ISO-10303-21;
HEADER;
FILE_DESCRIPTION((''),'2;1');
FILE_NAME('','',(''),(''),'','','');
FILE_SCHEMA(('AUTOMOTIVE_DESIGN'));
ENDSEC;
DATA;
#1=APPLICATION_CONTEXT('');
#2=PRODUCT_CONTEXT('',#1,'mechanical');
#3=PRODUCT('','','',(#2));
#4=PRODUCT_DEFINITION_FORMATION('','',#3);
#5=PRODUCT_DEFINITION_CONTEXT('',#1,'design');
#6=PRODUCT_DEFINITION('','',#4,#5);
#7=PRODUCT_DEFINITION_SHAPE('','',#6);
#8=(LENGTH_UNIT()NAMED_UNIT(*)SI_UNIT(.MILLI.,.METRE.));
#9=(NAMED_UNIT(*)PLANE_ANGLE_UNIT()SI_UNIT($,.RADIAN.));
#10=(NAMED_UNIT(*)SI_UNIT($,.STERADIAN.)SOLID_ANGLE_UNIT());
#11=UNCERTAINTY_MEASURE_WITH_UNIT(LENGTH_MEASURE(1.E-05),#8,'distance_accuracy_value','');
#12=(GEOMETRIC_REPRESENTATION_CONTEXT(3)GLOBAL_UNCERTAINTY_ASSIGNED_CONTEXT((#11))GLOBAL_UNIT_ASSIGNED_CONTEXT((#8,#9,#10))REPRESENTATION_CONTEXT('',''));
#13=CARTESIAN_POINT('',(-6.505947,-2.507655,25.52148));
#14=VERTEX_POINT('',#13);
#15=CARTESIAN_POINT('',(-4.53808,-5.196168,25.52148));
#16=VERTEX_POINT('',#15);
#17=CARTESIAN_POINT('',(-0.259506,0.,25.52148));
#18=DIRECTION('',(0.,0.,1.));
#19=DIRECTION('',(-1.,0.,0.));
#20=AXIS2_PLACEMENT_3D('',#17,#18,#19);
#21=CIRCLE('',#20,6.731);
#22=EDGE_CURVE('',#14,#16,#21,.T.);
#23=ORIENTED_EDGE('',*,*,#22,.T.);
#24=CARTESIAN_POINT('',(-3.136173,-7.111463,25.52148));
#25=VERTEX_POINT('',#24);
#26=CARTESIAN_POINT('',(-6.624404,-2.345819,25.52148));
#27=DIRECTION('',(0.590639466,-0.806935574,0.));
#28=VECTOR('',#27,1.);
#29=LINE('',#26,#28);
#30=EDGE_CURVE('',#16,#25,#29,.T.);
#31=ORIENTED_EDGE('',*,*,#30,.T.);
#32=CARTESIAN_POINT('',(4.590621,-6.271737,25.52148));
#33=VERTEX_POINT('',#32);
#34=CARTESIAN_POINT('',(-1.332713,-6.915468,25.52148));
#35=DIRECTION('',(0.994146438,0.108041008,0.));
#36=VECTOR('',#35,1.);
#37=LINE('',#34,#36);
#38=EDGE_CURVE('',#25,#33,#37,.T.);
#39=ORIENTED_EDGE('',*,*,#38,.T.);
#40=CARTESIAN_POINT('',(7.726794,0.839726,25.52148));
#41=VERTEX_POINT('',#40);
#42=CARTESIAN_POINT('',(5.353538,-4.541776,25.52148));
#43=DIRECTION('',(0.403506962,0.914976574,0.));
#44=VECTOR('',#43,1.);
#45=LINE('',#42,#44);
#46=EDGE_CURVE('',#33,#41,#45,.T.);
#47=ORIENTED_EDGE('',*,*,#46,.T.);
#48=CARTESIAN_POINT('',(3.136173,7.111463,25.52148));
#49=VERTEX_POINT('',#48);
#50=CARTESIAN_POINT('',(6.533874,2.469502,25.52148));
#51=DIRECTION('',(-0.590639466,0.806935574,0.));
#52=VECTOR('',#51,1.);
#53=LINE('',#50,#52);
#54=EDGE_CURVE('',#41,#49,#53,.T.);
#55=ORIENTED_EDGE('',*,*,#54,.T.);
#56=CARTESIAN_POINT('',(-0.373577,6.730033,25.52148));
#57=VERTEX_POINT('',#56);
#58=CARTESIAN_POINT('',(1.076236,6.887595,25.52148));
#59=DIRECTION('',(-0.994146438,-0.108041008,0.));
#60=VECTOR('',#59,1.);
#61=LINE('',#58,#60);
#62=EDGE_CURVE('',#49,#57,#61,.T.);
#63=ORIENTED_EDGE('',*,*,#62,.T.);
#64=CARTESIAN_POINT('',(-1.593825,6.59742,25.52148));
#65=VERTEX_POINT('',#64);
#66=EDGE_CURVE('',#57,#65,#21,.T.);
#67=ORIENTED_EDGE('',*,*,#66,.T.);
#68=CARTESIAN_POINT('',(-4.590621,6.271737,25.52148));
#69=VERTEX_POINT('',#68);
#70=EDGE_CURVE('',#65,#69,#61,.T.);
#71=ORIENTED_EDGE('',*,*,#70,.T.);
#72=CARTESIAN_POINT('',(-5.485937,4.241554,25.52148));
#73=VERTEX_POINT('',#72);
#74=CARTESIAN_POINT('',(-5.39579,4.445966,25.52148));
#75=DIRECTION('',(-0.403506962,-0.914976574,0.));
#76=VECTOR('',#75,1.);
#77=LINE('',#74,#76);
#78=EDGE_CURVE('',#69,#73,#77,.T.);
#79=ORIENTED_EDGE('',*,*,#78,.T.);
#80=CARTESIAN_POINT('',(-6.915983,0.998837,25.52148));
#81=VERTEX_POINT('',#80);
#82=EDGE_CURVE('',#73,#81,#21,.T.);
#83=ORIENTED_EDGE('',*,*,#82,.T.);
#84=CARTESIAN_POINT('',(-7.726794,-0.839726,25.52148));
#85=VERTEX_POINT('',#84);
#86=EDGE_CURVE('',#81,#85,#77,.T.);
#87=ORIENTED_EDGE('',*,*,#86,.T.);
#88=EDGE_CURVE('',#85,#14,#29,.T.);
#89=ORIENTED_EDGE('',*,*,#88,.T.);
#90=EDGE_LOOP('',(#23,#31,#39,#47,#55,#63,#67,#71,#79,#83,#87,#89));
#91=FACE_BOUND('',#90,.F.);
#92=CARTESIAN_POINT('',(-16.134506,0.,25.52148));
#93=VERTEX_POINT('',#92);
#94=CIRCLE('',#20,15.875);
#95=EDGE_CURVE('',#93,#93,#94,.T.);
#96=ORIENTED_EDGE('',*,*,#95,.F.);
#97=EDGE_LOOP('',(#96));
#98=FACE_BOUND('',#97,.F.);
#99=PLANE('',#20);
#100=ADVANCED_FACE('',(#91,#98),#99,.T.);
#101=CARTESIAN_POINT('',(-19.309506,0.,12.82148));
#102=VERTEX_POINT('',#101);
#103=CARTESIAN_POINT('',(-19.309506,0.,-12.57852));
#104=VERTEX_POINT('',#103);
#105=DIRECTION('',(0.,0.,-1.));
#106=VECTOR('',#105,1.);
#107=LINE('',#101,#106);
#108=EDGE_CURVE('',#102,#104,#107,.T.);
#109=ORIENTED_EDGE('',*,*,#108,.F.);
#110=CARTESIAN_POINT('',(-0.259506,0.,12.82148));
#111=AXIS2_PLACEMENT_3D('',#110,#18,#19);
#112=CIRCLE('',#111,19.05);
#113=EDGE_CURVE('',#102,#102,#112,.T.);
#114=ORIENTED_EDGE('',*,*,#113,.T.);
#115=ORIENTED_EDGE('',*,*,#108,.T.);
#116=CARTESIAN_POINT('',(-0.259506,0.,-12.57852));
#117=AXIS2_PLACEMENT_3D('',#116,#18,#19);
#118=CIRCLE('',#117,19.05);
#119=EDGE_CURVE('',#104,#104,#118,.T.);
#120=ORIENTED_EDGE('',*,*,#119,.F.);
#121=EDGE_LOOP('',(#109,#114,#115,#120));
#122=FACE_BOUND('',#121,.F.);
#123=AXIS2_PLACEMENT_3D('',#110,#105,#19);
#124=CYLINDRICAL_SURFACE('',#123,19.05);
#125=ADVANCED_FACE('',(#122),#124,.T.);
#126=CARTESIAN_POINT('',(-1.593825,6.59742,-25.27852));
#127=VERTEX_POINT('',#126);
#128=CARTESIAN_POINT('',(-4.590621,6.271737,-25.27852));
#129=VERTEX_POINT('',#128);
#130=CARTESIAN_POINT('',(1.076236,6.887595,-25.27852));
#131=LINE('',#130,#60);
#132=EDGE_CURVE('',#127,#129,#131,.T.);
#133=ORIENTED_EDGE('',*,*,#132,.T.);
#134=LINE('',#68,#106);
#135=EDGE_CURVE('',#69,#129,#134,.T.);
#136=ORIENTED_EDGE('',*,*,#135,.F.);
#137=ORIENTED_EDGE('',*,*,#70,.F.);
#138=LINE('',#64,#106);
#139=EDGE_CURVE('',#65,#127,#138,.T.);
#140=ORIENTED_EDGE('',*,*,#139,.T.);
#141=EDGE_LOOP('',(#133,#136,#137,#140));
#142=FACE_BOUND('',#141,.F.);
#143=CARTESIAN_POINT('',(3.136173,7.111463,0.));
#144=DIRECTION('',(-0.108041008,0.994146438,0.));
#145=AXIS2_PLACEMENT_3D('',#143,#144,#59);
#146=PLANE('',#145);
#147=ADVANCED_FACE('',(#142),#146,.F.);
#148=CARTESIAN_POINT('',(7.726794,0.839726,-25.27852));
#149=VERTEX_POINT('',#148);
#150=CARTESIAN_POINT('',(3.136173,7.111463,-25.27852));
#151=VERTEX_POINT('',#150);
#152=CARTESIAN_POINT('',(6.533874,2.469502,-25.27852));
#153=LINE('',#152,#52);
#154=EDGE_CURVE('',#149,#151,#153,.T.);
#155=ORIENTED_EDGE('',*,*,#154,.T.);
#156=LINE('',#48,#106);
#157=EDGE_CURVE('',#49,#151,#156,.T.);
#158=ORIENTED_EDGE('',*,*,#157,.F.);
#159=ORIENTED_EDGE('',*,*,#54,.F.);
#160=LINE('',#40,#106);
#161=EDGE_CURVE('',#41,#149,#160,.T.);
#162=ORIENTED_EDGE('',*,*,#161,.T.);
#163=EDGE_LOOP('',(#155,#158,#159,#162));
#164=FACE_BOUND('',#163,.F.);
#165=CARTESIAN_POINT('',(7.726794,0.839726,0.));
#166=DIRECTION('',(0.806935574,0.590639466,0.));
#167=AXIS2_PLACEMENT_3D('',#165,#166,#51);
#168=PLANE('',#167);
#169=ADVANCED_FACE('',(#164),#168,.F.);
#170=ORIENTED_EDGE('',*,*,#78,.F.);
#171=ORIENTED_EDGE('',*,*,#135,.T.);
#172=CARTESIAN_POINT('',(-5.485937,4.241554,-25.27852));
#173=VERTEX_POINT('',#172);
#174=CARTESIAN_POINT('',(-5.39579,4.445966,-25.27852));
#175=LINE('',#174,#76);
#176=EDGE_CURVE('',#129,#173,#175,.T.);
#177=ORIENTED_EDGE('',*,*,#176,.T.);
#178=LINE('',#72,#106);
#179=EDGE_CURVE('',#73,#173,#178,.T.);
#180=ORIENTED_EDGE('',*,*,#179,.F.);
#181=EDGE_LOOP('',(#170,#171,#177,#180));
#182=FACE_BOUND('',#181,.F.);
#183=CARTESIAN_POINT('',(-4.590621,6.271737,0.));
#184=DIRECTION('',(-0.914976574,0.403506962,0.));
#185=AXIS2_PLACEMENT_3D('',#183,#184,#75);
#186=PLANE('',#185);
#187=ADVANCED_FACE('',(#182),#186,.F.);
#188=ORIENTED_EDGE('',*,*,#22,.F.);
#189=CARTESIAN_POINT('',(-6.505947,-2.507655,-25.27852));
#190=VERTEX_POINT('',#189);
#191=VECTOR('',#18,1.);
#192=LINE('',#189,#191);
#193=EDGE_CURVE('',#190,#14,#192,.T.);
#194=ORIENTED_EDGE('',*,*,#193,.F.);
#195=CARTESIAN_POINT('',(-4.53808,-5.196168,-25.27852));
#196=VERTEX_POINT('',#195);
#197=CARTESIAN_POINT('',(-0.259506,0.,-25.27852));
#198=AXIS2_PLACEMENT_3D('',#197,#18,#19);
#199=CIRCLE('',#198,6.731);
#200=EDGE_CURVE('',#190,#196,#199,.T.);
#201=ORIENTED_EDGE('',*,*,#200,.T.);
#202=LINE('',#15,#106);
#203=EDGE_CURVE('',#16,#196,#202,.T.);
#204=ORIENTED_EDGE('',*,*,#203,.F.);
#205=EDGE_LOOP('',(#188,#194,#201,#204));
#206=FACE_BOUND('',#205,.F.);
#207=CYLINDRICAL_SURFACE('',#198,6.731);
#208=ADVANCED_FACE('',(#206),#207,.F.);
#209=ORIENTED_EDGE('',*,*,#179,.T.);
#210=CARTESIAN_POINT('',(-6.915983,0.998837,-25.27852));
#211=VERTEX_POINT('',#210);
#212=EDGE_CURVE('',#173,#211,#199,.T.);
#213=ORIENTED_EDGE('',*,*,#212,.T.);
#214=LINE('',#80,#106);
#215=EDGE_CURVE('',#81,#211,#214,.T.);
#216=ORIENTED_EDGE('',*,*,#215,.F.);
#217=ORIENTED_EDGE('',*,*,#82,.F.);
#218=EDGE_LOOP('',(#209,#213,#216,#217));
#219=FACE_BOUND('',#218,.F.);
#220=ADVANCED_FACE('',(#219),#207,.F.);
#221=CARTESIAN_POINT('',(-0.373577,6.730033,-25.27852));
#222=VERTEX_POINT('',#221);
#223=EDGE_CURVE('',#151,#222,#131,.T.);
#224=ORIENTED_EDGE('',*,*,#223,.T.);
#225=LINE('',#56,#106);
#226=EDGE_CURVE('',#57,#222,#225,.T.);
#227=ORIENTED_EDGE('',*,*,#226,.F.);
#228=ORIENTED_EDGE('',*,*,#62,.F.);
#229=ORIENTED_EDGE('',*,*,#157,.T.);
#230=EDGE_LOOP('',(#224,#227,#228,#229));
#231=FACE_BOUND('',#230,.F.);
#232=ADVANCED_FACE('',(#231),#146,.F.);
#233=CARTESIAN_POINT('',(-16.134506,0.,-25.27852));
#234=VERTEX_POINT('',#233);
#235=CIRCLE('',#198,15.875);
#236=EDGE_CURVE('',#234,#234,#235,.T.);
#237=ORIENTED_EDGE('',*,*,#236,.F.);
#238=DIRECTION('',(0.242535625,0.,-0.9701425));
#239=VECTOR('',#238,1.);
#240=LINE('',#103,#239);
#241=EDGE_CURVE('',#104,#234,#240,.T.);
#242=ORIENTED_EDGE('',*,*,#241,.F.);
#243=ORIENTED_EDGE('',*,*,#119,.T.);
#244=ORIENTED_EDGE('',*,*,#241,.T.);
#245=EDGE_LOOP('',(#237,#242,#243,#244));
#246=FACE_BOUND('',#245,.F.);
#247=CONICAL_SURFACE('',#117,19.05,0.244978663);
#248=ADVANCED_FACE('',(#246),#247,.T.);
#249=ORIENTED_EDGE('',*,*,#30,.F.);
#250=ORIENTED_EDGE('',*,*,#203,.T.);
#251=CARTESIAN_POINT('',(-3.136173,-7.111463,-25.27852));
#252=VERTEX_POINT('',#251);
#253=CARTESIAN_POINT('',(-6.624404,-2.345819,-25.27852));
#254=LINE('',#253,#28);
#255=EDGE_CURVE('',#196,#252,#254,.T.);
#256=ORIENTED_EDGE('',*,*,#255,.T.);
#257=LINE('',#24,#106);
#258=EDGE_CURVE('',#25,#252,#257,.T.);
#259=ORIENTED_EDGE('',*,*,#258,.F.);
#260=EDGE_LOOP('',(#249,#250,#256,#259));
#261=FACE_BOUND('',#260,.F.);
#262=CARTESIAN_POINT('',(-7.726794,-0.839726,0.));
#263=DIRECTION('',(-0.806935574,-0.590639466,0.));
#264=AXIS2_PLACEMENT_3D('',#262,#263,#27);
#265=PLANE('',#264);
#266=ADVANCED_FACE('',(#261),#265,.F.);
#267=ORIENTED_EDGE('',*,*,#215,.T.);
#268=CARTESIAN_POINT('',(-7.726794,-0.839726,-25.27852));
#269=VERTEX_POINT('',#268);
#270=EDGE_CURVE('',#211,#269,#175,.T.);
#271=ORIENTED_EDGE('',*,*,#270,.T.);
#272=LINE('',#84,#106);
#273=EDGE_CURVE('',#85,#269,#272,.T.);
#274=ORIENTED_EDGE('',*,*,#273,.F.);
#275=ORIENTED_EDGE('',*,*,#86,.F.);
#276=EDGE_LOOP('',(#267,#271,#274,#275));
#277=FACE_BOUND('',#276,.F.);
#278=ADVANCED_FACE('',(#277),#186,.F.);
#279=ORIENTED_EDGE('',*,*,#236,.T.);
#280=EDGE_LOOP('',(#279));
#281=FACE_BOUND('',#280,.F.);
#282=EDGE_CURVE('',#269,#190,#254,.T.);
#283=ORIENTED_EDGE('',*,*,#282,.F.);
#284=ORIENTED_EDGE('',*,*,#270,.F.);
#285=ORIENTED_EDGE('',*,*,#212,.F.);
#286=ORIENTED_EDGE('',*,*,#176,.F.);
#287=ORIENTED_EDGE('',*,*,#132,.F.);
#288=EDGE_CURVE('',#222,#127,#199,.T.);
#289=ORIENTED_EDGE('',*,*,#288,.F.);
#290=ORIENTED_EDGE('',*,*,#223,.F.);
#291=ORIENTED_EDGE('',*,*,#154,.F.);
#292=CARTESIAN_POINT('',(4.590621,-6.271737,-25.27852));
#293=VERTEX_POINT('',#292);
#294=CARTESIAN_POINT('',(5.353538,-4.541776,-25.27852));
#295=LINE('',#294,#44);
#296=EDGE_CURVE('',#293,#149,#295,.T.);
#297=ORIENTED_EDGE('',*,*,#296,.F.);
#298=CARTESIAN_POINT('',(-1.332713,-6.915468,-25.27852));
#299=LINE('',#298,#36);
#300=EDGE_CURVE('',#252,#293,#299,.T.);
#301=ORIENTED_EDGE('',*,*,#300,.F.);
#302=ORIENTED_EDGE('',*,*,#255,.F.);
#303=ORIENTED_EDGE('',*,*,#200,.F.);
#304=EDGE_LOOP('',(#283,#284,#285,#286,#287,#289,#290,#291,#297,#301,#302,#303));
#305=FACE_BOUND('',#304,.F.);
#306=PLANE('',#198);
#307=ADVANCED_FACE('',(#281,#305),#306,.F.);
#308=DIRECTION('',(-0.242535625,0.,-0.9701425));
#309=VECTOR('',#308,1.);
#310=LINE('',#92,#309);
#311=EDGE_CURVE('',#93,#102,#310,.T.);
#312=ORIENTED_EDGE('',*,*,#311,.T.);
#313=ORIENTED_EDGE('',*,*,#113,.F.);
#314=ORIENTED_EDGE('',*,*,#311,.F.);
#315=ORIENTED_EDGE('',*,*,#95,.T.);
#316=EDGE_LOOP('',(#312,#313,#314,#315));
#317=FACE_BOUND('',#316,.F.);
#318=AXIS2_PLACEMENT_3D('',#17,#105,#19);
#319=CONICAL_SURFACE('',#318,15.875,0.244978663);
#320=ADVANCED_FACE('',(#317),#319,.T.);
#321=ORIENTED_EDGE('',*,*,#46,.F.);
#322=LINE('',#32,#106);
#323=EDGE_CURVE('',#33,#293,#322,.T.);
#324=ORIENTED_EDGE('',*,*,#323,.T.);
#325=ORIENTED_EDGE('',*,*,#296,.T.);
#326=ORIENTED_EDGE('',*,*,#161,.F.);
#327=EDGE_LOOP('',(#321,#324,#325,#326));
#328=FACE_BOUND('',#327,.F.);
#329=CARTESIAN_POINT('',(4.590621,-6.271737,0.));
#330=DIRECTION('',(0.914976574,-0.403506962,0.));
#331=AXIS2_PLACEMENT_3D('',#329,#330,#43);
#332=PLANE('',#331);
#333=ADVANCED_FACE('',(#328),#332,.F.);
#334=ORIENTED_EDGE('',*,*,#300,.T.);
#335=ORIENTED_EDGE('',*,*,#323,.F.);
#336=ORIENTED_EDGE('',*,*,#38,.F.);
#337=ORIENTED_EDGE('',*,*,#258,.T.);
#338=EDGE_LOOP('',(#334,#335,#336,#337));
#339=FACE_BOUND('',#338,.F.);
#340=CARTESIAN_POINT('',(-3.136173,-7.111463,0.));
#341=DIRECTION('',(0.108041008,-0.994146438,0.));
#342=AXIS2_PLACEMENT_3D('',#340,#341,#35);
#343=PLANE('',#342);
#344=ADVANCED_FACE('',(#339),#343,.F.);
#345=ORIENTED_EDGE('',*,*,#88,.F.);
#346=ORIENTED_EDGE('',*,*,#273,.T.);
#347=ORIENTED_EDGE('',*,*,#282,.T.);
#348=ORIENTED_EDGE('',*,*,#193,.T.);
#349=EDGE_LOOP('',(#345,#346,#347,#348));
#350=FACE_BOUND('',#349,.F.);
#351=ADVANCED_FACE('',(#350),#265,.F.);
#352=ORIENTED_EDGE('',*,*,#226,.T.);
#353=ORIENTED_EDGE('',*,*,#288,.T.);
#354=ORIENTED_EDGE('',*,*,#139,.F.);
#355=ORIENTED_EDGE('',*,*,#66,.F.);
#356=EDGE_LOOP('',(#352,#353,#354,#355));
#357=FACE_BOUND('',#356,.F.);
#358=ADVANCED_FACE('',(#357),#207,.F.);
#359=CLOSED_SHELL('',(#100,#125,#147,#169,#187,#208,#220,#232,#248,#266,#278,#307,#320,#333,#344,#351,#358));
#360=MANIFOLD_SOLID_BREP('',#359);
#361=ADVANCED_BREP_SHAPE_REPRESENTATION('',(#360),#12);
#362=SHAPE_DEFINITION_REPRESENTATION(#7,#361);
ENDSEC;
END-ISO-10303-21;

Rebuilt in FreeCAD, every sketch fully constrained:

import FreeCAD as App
import Part
import Sketcher
Q = App.Units.Quantity


def add_polygon(sketch, points):
    """Adds a closed chain of lines whose ends are joined by coincident constraints."""
    first, n = sketch.GeometryCount, len(points)
    for a, b in zip(points, points[1:] + points[:1]):
        sketch.addGeometry(Part.LineSegment(App.Vector(*a, 0), App.Vector(*b, 0)), False)
    for i in range(n):
        sketch.addConstraint(Sketcher.Constraint("Coincident", first + i, 2, first + (i + 1) % n, 1))

doc = App.newDocument("Part")
body = doc.addObject("PartDesign::Body", "Body")

# Sketch on XZ plane
sketch1 = doc.addObject("Sketcher::SketchObject", "Sketch")
body.addObject(sketch1)
sketch1.AttachmentSupport = (doc.XZ_Plane, [""])
sketch1.MapMode = "FlatFace"
add_polygon(sketch1, [(-16, -25), (-7, -25), (-7, 26), (-16, 26), (-19, 13), (-19, -13)])  # lines 0-5
sketch1.addGeometry(Part.LineSegment(App.Vector(0, -25, 0), App.Vector(0, 26, 0)), True)  # axis
sketch1.addConstraint([
    Sketcher.Constraint("Horizontal", 0),
    Sketcher.Constraint("Vertical", 1),
    Sketcher.Constraint("Horizontal", 2),
    Sketcher.Constraint("Vertical", 4),
    Sketcher.Constraint("Vertical", 6),
    Sketcher.Constraint("Horizontal", 5, 2, 6, 1),
    Sketcher.Constraint("Horizontal", 2, 2, 6, 2),
    Sketcher.Constraint("Vertical", 2, 2, 5, 2),
    Sketcher.Constraint("Equal", 3, 5),
    Sketcher.Constraint("DistanceY", 1, 1, 1, 2, Q("2 in")),
    Sketcher.Constraint("DistanceY", 4, 2, 4, 1, Q("1 in")),
    Sketcher.Constraint("DistanceX", 0, 1, 0, 2, Q("0.36 in")),
    Sketcher.Constraint("DistanceX", 4, 2, 6, 1, Q("0.75 in")),
    Sketcher.Constraint("DistanceX", 3, 2, 2, 2, Q("0.125 in")),
    Sketcher.Constraint("DistanceY", 0, 2, -1, 1, 25.27852),
    Sketcher.Constraint("DistanceX", 0, 2, -1, 1, 6.990506),
])
revolution = doc.addObject("PartDesign::Revolution", "Revolution")
body.addObject(revolution)
revolution.Profile = sketch1
revolution.ReferenceAxis = (sketch1, ["Axis0"])
revolution.Angle = 360

# Sketch on XY plane
sketch2 = doc.addObject("Sketcher::SketchObject", "Sketch001")
body.addObject(sketch2)
sketch2.AttachmentSupport = (doc.XY_Plane, [""])
sketch2.MapMode = "FlatFace"
add_polygon(sketch2, [(8, 1), (3, 7), (-5, 6), (-8, -1), (-3, -7), (5, -6)])  # lines 0-5
sketch2.addConstraint([
    Sketcher.Constraint("Symmetric", 0, 2, 3, 2, -1, 1),
    Sketcher.Constraint("Symmetric", 1, 2, 4, 2, -1, 1),
    Sketcher.Constraint("Symmetric", 2, 2, 5, 2, -1, 1),
    Sketcher.Constraint("Equal", 0, 1),
    Sketcher.Constraint("Equal", 1, 2),
    Sketcher.Constraint("DistanceY", 3, 2, 1, 2, 13.3832),
    Sketcher.Constraint("Distance", 0, 7.77229),
    Sketcher.Constraint("DistanceX", 1, 2, -1, 1, 4.590621),
    Sketcher.Constraint("DistanceY", 2, 2, 0, 2, 7.951189),
])
pocket1 = doc.addObject("PartDesign::Pocket", "Pocket")
body.addObject(pocket1)
pocket1.Profile = sketch2
pocket1.Type = "ThroughAll"
pocket1.Midplane = True

doc.recompute()
